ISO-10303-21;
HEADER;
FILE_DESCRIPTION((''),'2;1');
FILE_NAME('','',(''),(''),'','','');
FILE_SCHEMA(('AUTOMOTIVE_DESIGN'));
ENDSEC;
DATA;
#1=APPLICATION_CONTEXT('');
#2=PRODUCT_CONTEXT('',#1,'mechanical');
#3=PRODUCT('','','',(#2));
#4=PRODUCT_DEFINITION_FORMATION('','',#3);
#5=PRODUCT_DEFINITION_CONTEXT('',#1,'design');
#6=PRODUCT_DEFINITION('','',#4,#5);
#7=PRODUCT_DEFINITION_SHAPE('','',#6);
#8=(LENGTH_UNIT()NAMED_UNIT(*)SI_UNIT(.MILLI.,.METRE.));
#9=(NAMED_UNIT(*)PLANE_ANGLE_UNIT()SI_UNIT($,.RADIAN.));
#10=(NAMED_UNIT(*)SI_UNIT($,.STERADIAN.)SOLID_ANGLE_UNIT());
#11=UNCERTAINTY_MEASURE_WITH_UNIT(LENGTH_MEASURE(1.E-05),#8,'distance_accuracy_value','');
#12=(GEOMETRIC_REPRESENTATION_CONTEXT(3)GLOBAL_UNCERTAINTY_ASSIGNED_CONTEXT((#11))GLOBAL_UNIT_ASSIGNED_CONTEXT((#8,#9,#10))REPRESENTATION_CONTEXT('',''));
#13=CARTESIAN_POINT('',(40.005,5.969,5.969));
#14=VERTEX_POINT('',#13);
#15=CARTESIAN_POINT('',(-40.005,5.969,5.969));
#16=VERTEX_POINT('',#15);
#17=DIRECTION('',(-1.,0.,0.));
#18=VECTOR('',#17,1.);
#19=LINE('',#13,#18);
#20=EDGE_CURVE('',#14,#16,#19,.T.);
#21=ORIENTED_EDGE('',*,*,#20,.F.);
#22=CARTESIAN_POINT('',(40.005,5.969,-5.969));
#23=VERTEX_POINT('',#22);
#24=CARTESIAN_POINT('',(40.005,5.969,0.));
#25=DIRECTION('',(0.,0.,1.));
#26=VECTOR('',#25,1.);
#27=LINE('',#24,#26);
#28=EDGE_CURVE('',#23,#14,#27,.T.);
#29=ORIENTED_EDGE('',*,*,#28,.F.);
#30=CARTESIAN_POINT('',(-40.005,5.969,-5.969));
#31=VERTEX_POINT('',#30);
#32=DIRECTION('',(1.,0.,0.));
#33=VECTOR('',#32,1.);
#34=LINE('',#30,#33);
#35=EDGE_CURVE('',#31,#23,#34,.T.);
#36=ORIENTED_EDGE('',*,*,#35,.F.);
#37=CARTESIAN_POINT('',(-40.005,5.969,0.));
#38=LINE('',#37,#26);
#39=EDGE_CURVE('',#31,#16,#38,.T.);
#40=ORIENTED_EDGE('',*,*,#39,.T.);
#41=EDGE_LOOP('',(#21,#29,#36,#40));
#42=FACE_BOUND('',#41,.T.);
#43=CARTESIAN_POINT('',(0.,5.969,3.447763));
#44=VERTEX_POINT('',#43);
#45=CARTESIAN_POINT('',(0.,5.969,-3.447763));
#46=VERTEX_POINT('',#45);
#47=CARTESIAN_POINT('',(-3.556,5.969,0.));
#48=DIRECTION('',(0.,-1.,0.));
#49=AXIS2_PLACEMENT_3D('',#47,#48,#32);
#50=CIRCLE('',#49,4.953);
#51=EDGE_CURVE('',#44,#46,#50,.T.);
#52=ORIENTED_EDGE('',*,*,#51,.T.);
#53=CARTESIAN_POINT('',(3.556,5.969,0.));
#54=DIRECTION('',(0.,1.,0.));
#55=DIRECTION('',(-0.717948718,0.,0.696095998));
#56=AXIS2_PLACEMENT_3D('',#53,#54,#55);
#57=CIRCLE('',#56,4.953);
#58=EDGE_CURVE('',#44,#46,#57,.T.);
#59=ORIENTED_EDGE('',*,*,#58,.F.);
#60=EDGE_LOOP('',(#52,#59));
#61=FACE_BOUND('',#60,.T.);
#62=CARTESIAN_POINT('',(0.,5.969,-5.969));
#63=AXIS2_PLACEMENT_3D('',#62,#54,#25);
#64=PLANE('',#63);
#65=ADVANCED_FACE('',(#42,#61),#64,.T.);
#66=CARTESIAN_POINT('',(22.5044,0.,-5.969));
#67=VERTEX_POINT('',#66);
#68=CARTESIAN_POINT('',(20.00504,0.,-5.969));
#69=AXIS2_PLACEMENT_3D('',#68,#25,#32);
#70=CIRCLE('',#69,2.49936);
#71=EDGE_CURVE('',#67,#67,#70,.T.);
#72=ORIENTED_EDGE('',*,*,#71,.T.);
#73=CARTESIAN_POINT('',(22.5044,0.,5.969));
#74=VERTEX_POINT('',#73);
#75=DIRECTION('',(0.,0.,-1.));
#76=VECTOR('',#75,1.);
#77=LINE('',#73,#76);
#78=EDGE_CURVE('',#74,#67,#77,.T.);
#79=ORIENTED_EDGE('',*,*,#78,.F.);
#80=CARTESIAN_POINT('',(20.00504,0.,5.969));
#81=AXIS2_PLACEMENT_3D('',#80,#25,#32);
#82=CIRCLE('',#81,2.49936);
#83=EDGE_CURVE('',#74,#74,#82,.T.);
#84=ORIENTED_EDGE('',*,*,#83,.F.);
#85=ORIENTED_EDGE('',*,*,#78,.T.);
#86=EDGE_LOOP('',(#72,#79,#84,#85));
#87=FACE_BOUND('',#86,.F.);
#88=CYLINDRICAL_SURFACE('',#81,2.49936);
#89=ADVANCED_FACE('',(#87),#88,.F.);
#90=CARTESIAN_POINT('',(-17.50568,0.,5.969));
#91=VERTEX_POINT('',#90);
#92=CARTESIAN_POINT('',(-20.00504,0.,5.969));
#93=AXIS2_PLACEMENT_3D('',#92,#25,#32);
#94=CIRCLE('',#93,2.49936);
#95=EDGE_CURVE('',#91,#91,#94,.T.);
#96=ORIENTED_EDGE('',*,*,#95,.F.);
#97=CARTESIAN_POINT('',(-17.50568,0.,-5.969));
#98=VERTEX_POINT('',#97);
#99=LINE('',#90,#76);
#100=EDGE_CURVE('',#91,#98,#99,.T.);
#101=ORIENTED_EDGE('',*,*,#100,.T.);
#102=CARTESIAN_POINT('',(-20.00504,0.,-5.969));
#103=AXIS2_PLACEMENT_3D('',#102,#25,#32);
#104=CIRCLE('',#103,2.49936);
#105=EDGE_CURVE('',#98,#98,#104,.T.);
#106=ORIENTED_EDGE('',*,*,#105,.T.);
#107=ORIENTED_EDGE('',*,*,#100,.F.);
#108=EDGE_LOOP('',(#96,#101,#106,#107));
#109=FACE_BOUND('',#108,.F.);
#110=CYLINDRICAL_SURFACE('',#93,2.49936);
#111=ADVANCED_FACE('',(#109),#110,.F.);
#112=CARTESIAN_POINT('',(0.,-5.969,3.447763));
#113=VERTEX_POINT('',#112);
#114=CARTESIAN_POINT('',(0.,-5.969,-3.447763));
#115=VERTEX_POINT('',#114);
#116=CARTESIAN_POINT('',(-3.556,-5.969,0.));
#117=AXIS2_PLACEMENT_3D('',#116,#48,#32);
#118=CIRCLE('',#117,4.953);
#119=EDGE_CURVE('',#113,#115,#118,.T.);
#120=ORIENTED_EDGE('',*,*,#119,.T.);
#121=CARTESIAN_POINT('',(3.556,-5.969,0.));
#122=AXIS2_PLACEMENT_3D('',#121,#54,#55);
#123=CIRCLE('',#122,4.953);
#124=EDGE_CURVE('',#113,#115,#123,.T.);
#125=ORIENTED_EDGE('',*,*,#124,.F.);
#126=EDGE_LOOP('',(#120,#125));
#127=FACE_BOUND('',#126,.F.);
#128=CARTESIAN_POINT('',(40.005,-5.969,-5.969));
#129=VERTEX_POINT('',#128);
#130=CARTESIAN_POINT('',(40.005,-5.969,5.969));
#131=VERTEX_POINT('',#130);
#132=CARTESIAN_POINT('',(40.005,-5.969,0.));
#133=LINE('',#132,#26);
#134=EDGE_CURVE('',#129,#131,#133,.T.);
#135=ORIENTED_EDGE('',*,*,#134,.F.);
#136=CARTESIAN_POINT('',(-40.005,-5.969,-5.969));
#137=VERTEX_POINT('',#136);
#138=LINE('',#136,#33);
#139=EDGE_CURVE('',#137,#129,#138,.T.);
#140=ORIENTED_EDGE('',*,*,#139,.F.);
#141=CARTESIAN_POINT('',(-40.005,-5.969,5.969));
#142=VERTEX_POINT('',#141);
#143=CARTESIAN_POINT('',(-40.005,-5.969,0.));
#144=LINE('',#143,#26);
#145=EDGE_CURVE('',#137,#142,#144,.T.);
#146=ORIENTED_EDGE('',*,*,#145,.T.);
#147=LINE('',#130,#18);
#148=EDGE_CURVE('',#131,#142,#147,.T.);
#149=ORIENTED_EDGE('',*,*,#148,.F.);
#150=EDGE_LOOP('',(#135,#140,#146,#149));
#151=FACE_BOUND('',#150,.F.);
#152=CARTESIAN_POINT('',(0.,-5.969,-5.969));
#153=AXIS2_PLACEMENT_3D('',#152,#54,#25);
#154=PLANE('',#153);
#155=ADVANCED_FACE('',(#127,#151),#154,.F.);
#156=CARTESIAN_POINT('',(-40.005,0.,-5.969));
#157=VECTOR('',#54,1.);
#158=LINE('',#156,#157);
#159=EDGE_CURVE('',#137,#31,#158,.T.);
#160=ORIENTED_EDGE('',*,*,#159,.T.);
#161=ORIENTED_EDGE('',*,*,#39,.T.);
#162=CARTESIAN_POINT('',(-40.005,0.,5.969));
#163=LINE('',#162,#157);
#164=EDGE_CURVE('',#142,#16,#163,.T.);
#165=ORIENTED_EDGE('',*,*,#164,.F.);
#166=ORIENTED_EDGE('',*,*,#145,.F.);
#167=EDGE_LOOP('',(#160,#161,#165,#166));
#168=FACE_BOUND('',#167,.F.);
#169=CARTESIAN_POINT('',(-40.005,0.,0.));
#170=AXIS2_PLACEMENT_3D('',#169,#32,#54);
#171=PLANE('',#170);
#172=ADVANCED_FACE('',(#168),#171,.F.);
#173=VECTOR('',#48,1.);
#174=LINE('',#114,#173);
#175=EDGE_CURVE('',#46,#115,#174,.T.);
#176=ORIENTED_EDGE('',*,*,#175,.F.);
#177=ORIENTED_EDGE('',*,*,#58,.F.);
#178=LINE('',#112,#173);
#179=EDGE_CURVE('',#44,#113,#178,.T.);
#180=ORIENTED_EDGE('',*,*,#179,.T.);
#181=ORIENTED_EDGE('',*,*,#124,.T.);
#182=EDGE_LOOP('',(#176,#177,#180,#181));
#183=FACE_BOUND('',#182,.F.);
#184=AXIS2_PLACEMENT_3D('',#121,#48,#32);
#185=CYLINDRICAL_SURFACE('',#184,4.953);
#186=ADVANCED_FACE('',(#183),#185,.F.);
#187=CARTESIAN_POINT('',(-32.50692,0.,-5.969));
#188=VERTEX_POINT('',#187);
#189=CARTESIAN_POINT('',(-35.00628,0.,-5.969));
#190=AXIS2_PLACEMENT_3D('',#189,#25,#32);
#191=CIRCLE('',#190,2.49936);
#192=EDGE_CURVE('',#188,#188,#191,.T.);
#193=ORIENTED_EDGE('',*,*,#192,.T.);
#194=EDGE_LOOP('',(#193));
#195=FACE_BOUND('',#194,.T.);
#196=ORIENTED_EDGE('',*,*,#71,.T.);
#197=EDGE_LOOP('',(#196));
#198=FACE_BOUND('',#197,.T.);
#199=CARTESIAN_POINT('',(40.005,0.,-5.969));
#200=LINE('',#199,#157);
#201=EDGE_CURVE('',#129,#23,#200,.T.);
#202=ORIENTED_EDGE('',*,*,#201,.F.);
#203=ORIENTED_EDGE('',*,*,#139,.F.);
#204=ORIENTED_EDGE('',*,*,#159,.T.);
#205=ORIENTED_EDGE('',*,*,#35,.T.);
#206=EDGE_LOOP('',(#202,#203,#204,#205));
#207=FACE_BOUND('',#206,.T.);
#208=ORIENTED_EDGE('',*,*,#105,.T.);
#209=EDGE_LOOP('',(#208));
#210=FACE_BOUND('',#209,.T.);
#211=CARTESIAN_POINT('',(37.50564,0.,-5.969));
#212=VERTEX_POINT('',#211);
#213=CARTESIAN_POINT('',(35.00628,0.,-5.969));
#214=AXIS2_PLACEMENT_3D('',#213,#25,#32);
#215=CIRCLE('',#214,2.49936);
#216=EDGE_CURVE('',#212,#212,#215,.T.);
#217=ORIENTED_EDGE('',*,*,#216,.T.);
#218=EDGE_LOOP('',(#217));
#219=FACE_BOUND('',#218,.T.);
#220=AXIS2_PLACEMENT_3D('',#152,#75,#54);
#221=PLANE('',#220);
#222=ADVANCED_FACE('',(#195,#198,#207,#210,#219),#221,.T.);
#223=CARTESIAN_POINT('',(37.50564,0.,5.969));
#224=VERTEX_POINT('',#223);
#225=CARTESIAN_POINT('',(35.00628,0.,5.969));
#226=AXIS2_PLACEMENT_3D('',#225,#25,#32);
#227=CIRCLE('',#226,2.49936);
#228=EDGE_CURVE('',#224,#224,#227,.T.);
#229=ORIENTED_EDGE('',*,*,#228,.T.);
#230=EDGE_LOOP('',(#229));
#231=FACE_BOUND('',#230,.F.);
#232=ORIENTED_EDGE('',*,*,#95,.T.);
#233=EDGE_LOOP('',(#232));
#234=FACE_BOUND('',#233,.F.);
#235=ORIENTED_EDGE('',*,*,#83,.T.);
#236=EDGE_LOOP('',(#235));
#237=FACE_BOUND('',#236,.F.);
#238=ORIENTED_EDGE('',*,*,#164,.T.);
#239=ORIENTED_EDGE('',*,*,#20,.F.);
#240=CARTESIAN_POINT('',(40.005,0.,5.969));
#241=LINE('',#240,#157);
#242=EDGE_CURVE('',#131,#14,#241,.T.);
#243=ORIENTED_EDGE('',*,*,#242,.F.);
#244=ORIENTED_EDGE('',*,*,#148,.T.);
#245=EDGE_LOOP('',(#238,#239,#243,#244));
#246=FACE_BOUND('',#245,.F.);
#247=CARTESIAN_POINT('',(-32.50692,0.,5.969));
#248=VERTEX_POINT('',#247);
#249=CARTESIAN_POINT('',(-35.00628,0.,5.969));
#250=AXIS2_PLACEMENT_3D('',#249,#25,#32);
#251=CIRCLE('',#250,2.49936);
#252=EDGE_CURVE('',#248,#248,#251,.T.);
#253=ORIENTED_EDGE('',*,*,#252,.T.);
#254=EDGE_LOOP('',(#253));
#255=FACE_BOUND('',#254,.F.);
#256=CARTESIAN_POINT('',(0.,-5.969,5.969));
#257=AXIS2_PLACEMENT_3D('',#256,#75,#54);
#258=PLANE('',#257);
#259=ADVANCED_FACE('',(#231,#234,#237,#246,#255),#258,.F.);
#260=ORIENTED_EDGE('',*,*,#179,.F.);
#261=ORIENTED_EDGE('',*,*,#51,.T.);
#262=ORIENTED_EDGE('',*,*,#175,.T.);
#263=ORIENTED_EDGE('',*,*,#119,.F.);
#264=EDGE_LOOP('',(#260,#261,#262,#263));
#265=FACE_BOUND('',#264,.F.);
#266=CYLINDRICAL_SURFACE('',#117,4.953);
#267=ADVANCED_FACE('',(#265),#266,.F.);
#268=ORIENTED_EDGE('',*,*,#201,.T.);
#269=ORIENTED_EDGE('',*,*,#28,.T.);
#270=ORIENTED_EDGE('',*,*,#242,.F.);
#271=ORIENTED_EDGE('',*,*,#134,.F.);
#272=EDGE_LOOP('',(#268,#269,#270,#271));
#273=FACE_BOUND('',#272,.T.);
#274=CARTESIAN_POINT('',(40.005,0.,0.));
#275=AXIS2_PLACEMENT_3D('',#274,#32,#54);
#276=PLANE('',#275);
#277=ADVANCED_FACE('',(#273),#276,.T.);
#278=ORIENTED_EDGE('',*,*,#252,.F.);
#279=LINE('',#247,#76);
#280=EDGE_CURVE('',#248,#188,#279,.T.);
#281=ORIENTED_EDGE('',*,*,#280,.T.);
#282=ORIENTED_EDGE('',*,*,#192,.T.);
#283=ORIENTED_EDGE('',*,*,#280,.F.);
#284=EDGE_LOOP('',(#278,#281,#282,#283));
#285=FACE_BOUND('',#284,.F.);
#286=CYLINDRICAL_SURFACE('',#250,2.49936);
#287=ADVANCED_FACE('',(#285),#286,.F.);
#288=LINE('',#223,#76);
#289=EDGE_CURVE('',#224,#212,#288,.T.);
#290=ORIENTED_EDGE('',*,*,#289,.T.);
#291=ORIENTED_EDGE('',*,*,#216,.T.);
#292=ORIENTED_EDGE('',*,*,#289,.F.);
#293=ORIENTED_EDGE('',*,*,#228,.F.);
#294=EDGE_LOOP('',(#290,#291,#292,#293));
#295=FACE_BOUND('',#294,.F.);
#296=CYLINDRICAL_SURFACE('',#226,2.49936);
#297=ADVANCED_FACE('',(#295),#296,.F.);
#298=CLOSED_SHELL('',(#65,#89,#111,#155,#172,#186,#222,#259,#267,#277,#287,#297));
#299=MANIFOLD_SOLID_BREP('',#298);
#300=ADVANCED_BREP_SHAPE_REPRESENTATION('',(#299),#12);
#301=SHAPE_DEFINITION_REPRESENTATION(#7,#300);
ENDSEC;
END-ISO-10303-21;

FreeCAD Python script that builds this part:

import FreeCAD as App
import Part
import Sketcher

V = App.Vector
Q = App.Units.Quantity


def add_polygon(sketch, points):
    """Adds a closed chain of lines whose ends are joined by coincident constraints."""
    first, n = sketch.GeometryCount, len(points)
    for a, b in zip(points, points[1:] + points[:1]):
        sketch.addGeometry(Part.LineSegment(App.Vector(*a, 0), App.Vector(*b, 0)), False)
    for i in range(n):
        sketch.addConstraint(Sketcher.Constraint("Coincident", first + i, 2, first + (i + 1) % n, 1))

doc = App.newDocument("Part")
body = doc.addObject("PartDesign::Body", "Body")

# Sketch on YZ plane
sketch1 = body.newObject("Sketcher::SketchObject", "Sketch")
sketch1.AttachmentSupport = (doc.getObject("YZ_Plane"), [""])
sketch1.MapMode = "FlatFace"
add_polygon(sketch1, [(-5.969, 5.969), (-5.969, -5.969), (5.969, -5.969), (5.969, 5.969)])  # lines 0-3
sketch1.addConstraint(Sketcher.Constraint("Vertical", 0))
sketch1.addConstraint(Sketcher.Constraint("Horizontal", 1))
sketch1.addConstraint(Sketcher.Constraint("Vertical", 2))
sketch1.addConstraint(Sketcher.Constraint("Horizontal", 3))
sketch1.addConstraint(Sketcher.Constraint("Symmetric", 0, 2, 2, 2, -1, 1))
sketch1.addConstraint(Sketcher.Constraint("Equal", 3, 0))
sketch1.addConstraint(Sketcher.Constraint("DistanceX", 1, 1, 1, 2, Q("0.47 in")))
pad1 = body.newObject("PartDesign::Pad", "Pad")
pad1.Profile = sketch1
pad1.Length = Q("3.15 in")
pad1.Midplane = True

# Sketch on XZ plane
sketch2 = body.newObject("Sketcher::SketchObject", "Sketch001")
sketch2.AttachmentSupport = (doc.getObject("XZ_Plane"), [""])
sketch2.MapMode = "FlatFace"
sketch2.AttachmentOffset = App.Placement(V(0, 0, 0.235 * 25.4), App.Rotation())
sketch2.addGeometry(Part.Circle(V(3.556, 0, 0), V(0, 0, 1), 4.953), False)
sketch2.addConstraint(Sketcher.Constraint("PointOnObject", 0, 3, -1))
sketch2.addConstraint(Sketcher.Constraint("Diameter", 0, Q("0.39 in")))
sketch2.addConstraint(Sketcher.Constraint("DistanceX", -1, 1, 0, 3, Q("0.14 in")))
pocket1 = body.newObject("PartDesign::Pocket", "Pocket")
pocket1.Profile = sketch2
pocket1.Length = Q("1 in")

# Sketch on XZ plane
sketch3 = body.newObject("Sketcher::SketchObject", "Sketch002")
sketch3.AttachmentSupport = (doc.getObject("XZ_Plane"), [""])
sketch3.MapMode = "FlatFace"
sketch3.AttachmentOffset = App.Placement(V(0, 0, 0.235 * 25.4), App.Rotation())
sketch3.addGeometry(Part.Circle(V(-3.556, 0, 0), V(0, 0, 1), 4.953), False)
sketch3.addConstraint(Sketcher.Constraint("PointOnObject", 0, 3, -1))
sketch3.addConstraint(Sketcher.Constraint("Diameter", 0, Q("0.39 in")))
sketch3.addConstraint(Sketcher.Constraint("DistanceX", 0, 3, -1, 1, Q("0.14 in")))
pocket2 = body.newObject("PartDesign::Pocket", "Pocket001")
pocket2.Profile = sketch3
pocket2.Type = "ThroughAll"

# Sketch on XY plane
sketch4 = body.newObject("Sketcher::SketchObject", "Sketch003")
sketch4.AttachmentSupport = (doc.getObject("XY_Plane"), [""])
sketch4.MapMode = "FlatFace"
sketch4.AttachmentOffset = App.Placement(V(0, 0, 0.235 * 25.4), App.Rotation())
sketch4.addGeometry(Part.Circle(V(-35.00628, 0, 0), V(0, 0, 1), 2.49936), False)
sketch4.addGeometry(Part.Circle(V(-20.00504, 0, 0), V(0, 0, 1), 2.49936), False)
sketch4.addGeometry(Part.Circle(V(20.00504, 0, 0), V(0, 0, 1), 2.49936), False)
sketch4.addGeometry(Part.Circle(V(35.00628, 0, 0), V(0, 0, 1), 2.49936), False)
sketch4.addConstraint(Sketcher.Constraint("Equal", 0, 1))
sketch4.addConstraint(Sketcher.Constraint("Equal", 1, 2))
sketch4.addConstraint(Sketcher.Constraint("Equal", 2, 3))
sketch4.addConstraint(Sketcher.Constraint("Symmetric", 1, 3, 2, 3, -1, 1))
sketch4.addConstraint(Sketcher.Constraint("Symmetric", 0, 3, 3, 3, -1, 1))
sketch4.addConstraint(Sketcher.Constraint("PointOnObject", 0, 3, -1))
sketch4.addConstraint(Sketcher.Constraint("PointOnObject", 1, 3, -1))
sketch4.addConstraint(Sketcher.Constraint("Diameter", 0, Q("0.1968 in")))
sketch4.addConstraint(Sketcher.Constraint("DistanceX", 0, 3, -1, 1, Q("1.3782 in")))
sketch4.addConstraint(Sketcher.Constraint("DistanceX", 1, 3, -1, 1, Q("0.7876 in")))
pocket3 = body.newObject("PartDesign::Pocket", "Pocket002")
pocket3.Profile = sketch4
pocket3.Type = "ThroughAll"

doc.recompute()
